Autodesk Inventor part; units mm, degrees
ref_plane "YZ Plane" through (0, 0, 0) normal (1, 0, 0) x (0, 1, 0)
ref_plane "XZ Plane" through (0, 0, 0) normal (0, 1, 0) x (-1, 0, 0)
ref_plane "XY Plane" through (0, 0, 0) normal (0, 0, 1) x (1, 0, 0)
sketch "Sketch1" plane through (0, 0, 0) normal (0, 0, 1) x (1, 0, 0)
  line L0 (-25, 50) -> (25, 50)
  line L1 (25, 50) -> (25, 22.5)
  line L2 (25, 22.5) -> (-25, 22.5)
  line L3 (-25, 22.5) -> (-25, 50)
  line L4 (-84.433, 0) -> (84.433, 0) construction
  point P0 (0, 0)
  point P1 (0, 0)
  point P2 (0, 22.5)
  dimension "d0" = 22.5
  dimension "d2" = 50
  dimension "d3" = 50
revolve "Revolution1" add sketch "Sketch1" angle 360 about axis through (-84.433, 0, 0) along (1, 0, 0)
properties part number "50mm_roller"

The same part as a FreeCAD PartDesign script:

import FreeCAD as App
import Part
import Sketcher

V = App.Vector

doc = App.newDocument("Part")
body = doc.addObject("PartDesign::Body", "Body")

# Sketch on XY plane
sketch1 = body.newObject("Sketcher::SketchObject", "Sketch")
sketch1.AttachmentSupport = (doc.getObject("XY_Plane"), [""])
sketch1.MapMode = "FlatFace"
sketch1.addGeometry(Part.LineSegment(V(25, 50, 0), V(-25, 50, 0)), False)
sketch1.addGeometry(Part.LineSegment(V(-25, 50, 0), V(-25, 22, 0)), False)
sketch1.addGeometry(Part.LineSegment(V(-25, 22, 0), V(25, 22, 0)), False)
sketch1.addGeometry(Part.LineSegment(V(25, 22, 0), V(25, 50, 0)), False)
sketch1.addConstraint(Sketcher.Constraint("Coincident", 0, 2, 1, 1))
sketch1.addConstraint(Sketcher.Constraint("Coincident", 1, 2, 2, 1))
sketch1.addConstraint(Sketcher.Constraint("Coincident", 2, 2, 3, 1))
sketch1.addConstraint(Sketcher.Constraint("Coincident", 3, 2, 0, 1))
sketch1.addConstraint(Sketcher.Constraint("Horizontal", 0))
sketch1.addConstraint(Sketcher.Constraint("Vertical", 1))
sketch1.addConstraint(Sketcher.Constraint("Horizontal", 2))
sketch1.addConstraint(Sketcher.Constraint("Vertical", 3))
sketch1.addConstraint(Sketcher.Constraint("DistanceX", 0, 2, 0, 1, 50.0))
sketch1.addConstraint(Sketcher.Constraint("DistanceY", -1, 1, 0, 2, 50.0))
sketch1.addConstraint(Sketcher.Constraint("DistanceY", -1, 1, 1, 2, 22.5))
sketch1.addConstraint(Sketcher.Constraint("DistanceX", 0, 2, -1, 1, 25.0))
revolution = body.newObject("PartDesign::Revolution", "Revolution")
revolution.Profile = sketch1
revolution.ReferenceAxis = (sketch1, ["H_Axis"])
revolution.Angle = 360

doc.recompute()
